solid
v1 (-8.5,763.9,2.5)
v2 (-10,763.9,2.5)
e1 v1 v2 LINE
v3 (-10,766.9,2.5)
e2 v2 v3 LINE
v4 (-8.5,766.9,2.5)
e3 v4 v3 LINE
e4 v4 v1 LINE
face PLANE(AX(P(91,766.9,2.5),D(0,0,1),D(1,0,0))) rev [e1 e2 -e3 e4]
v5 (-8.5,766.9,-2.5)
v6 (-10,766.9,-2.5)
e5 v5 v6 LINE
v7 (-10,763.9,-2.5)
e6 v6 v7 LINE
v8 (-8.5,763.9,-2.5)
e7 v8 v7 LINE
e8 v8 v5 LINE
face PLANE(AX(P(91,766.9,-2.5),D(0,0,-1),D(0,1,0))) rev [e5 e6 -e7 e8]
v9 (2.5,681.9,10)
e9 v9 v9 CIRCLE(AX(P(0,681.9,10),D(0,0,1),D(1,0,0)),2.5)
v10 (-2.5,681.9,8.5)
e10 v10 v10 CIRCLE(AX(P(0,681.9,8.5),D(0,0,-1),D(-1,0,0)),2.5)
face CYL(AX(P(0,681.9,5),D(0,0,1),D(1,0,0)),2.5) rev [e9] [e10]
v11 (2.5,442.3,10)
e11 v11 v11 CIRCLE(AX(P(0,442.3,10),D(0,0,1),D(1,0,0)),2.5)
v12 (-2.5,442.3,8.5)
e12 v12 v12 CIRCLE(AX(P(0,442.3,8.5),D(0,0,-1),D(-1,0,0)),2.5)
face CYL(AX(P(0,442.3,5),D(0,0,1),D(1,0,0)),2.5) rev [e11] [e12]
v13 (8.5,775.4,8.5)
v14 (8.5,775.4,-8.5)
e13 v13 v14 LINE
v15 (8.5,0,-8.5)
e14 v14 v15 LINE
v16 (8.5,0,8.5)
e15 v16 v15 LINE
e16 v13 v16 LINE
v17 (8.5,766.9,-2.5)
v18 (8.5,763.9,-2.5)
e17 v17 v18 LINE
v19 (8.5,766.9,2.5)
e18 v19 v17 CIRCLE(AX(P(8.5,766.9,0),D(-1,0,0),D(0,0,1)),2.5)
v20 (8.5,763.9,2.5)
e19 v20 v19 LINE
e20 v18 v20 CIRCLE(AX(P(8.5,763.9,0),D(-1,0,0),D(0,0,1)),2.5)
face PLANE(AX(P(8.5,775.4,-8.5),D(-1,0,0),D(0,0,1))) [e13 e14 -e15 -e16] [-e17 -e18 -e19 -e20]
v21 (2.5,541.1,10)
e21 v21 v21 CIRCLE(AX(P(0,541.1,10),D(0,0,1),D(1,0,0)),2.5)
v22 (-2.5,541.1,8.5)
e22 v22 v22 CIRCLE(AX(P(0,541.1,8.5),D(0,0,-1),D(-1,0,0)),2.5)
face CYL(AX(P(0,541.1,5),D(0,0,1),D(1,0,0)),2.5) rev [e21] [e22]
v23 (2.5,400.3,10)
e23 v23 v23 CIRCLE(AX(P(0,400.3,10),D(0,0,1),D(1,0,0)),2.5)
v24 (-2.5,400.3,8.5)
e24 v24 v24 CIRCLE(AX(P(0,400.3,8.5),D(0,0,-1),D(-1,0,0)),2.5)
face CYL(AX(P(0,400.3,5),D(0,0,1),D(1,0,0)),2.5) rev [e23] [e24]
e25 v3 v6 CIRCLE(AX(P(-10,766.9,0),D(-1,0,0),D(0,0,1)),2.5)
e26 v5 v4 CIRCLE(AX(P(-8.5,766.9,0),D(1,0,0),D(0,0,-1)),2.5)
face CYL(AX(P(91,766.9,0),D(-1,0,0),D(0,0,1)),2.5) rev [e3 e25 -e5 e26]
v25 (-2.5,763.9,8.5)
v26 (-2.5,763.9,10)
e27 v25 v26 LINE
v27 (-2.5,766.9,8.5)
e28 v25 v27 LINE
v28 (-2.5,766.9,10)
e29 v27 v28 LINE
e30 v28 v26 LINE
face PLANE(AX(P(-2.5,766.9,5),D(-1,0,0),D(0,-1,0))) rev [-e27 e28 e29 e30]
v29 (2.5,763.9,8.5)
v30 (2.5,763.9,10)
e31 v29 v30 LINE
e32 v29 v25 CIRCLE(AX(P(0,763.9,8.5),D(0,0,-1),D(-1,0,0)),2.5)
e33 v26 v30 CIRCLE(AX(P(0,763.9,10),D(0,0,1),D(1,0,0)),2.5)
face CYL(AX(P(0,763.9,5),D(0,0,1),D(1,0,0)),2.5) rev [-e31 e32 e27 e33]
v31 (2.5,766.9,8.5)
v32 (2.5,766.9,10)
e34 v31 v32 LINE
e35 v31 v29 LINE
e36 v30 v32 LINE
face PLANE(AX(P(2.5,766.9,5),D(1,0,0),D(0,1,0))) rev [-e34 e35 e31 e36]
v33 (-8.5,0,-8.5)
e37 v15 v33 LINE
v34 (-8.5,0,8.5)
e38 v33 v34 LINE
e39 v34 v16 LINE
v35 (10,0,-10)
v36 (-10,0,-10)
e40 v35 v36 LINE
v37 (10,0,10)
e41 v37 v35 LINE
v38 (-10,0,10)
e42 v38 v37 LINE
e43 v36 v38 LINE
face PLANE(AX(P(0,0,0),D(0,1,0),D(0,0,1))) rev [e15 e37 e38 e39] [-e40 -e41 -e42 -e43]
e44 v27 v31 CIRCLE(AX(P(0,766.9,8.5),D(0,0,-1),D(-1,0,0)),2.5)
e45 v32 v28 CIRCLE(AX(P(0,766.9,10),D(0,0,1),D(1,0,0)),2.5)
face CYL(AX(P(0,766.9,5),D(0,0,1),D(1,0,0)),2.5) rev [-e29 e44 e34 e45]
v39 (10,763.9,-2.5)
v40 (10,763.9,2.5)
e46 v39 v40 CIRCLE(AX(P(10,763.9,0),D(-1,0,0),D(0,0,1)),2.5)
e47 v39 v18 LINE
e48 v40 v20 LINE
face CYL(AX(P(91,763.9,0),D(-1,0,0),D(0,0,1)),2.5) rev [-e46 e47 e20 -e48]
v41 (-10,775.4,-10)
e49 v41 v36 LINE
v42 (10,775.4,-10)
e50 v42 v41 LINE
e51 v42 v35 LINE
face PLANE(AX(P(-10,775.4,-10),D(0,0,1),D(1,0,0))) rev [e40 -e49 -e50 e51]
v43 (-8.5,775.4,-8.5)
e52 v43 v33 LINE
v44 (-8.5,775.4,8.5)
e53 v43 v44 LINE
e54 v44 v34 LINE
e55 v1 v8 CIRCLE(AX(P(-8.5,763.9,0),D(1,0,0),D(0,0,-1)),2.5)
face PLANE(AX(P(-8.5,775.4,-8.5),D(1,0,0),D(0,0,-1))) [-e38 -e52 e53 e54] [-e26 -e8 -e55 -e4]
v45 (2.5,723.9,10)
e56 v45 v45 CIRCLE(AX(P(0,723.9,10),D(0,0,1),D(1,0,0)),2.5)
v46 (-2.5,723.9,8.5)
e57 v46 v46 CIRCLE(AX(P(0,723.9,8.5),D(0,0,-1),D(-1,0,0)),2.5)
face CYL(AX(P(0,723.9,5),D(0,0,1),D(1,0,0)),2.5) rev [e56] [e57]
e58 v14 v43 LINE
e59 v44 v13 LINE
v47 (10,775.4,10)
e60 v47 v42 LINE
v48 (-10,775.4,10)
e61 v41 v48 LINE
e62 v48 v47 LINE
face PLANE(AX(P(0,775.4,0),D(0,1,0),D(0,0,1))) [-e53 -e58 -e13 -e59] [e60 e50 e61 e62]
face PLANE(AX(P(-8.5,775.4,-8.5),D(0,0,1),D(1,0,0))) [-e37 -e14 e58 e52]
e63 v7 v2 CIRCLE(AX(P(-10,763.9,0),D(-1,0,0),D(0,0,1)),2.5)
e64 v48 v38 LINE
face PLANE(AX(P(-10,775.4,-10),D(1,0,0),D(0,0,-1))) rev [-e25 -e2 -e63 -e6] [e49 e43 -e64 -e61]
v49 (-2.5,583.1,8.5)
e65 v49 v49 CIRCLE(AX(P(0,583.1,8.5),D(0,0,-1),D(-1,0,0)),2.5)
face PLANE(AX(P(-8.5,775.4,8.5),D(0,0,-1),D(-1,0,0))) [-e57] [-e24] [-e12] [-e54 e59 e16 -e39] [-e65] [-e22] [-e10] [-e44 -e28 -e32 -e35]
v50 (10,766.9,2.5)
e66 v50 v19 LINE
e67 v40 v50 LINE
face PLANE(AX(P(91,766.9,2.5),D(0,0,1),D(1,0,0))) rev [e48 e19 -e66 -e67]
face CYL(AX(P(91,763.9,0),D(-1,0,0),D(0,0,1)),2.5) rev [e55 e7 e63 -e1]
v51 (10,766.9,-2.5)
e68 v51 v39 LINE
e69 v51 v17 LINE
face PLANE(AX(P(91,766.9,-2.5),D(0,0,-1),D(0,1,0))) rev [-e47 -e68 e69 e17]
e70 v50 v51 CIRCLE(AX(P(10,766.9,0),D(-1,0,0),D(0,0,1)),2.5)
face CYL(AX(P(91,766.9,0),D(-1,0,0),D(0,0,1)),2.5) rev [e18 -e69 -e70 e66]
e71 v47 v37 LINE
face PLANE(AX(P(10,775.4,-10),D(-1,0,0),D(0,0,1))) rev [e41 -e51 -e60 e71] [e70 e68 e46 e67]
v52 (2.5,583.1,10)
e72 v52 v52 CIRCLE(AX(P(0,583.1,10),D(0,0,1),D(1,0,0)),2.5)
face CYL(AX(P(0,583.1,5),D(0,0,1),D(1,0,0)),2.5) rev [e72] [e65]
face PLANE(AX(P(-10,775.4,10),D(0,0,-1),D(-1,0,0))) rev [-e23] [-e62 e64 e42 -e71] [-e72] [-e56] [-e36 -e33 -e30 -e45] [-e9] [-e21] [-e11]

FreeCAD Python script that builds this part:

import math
import FreeCAD as App
import Part
import Sketcher
Q = App.Units.Quantity

doc = App.newDocument("Part")
body = doc.addObject("PartDesign::Body", "Body")

# Sketch on XZ plane
sketch1 = body.newObject("Sketcher::SketchObject", "Sketch")
sketch1.AttachmentSupport = (doc.getObject("XZ_Plane"), [""])
sketch1.MapMode = "FlatFace"
sketch1.addGeometry([
    Part.LineSegment(App.Vector(-10, -10, 0), App.Vector(-10, 10, 0)),  # 0
    Part.LineSegment(App.Vector(-10, 10, 0), App.Vector(10, 10, 0)),  # 1
    Part.LineSegment(App.Vector(10, 10, 0), App.Vector(10, -10, 0)),  # 2
    Part.LineSegment(App.Vector(10, -10, 0), App.Vector(-10, -10, 0)),  # 3
    Part.LineSegment(App.Vector(8, 8, 0), App.Vector(-8, 8, 0)),  # 4
    Part.LineSegment(App.Vector(-8, 8, 0), App.Vector(-8, -8, 0)),  # 5
    Part.LineSegment(App.Vector(-8, -8, 0), App.Vector(8, -8, 0)),  # 6
    Part.LineSegment(App.Vector(8, -8, 0), App.Vector(8, 8, 0)),  # 7
], False)
sketch1.addConstraint([
    Sketcher.Constraint("Coincident", 0, 2, 1, 1),
    Sketcher.Constraint("Coincident", 1, 2, 2, 1),
    Sketcher.Constraint("Coincident", 2, 2, 3, 1),
    Sketcher.Constraint("Coincident", 3, 2, 0, 1),
    Sketcher.Constraint("Coincident", 4, 2, 5, 1),
    Sketcher.Constraint("Coincident", 5, 2, 6, 1),
    Sketcher.Constraint("Coincident", 6, 2, 7, 1),
    Sketcher.Constraint("Coincident", 7, 2, 4, 1),
    Sketcher.Constraint("Vertical", 0),
    Sketcher.Constraint("Horizontal", 1),
    Sketcher.Constraint("Vertical", 2),
    Sketcher.Constraint("Horizontal", 3),
    Sketcher.Constraint("Horizontal", 4),
    Sketcher.Constraint("Vertical", 5),
    Sketcher.Constraint("Horizontal", 6),
    Sketcher.Constraint("Vertical", 7),
    Sketcher.Constraint("Symmetric", 0, 2, 2, 2, -1, 1),
    Sketcher.Constraint("Symmetric", 4, 2, 6, 2, -1, 1),
    Sketcher.Constraint("Equal", 3, 0),
    Sketcher.Constraint("Equal", 6, 5),
    Sketcher.Constraint("DistanceX", 1, 1, 1, 2, Q("20 mm")),
    Sketcher.Constraint("DistanceX", 4, 2, 4, 1, Q("17 mm")),
])
pad1 = body.newObject("PartDesign::Pad", "Pad")
pad1.Profile = sketch1
pad1.Length = 775.4
pad1.Reversed = True

# Sketch on XY plane
sketch2 = body.newObject("Sketcher::SketchObject", "Sketch001")
sketch2.AttachmentSupport = (doc.getObject("XY_Plane"), [""])
sketch2.MapMode = "FlatFace"
sketch2.AttachmentOffset = App.Placement(App.Vector(0, 0, 10), App.Rotation())
sketch2.addGeometry([
    Part.LineSegment(App.Vector(-2.5, 766.9, 0), App.Vector(-2.5, 763.9, 0)),
    Part.ArcOfCircle(Part.Circle(App.Vector(0, 763.9, 0), App.Vector(0, 0, 1), 2.5), math.radians(180), math.radians(360)),
    Part.LineSegment(App.Vector(2.5, 763.9, 0), App.Vector(2.5, 766.9, 0)),
    Part.ArcOfCircle(Part.Circle(App.Vector(0, 766.9, 0), App.Vector(0, 0, 1), 2.5), math.radians(0), math.radians(180)),
], False)
sketch2.addConstraint([
    Sketcher.Constraint("Tangent", 0, 2, 1, 1),
    Sketcher.Constraint("Tangent", 1, 2, 2, 1),
    Sketcher.Constraint("Tangent", 2, 2, 3, 1),
    Sketcher.Constraint("Tangent", 3, 2, 0, 1),
    Sketcher.Constraint("Vertical", 0),
    Sketcher.Constraint("Vertical", 2),
    Sketcher.Constraint("PointOnObject", 1, 3, -2),
    Sketcher.Constraint("Radius", 1, Q("2.5 mm")),
    Sketcher.Constraint("DistanceY", 0, 2, 0, 1, Q("3 mm")),
    Sketcher.Constraint("DistanceY", -1, 1, 1, 3, Q("763.9 mm")),
])
pocket1 = body.newObject("PartDesign::Pocket", "Pocket")
pocket1.Profile = sketch2
pocket1.Length = 5

# Sketch on XY plane
sketch3 = body.newObject("Sketcher::SketchObject", "Sketch002")
sketch3.AttachmentSupport = (doc.getObject("XY_Plane"), [""])
sketch3.MapMode = "FlatFace"
sketch3.AttachmentOffset = App.Placement(App.Vector(0, 0, 10), App.Rotation())
sketch3.addGeometry([
    Part.Circle(App.Vector(0, 723.9, 0), App.Vector(0, 0, 1), 2.5),  # 0
    Part.Circle(App.Vector(0, 681.9, 0), App.Vector(0, 0, 1), 2.5),  # 1
    Part.Circle(App.Vector(0, 583.1, 0), App.Vector(0, 0, 1), 2.5),  # 2
    Part.Circle(App.Vector(0, 541.1, 0), App.Vector(0, 0, 1), 2.5),  # 3
    Part.Circle(App.Vector(0, 442.3, 0), App.Vector(0, 0, 1), 2.5),  # 4
    Part.Circle(App.Vector(0, 400.3, 0), App.Vector(0, 0, 1), 2.5),  # 5
], False)
sketch3.addConstraint([
    Sketcher.Constraint("Equal", 0, 1),
    Sketcher.Constraint("Equal", 1, 2),
    Sketcher.Constraint("Equal", 2, 3),
    Sketcher.Constraint("Equal", 3, 4),
    Sketcher.Constraint("Equal", 4, 5),
    Sketcher.Constraint("PointOnObject", 0, 3, -2),
    Sketcher.Constraint("PointOnObject", 1, 3, -2),
    Sketcher.Constraint("PointOnObject", 2, 3, -2),
    Sketcher.Constraint("PointOnObject", 3, 3, -2),
    Sketcher.Constraint("PointOnObject", 4, 3, -2),
    Sketcher.Constraint("PointOnObject", 5, 3, -2),
    Sketcher.Constraint("Diameter", 0, Q("5 mm")),
    Sketcher.Constraint("DistanceY", 1, 3, 0, 3, Q("42 mm")),
    Sketcher.Constraint("DistanceY", 3, 3, 2, 3, Q("42 mm")),
    Sketcher.Constraint("DistanceY", 5, 3, 4, 3, Q("42 mm")),
    Sketcher.Constraint("DistanceY", -1, 1, 0, 3, Q("723.9 mm")),
    Sketcher.Constraint("DistanceY", -1, 1, 2, 3, Q("583.1 mm")),
    Sketcher.Constraint("DistanceY", -1, 1, 4, 3, Q("442.3 mm")),
])
pocket2 = body.newObject("PartDesign::Pocket", "Pocket001")
pocket2.Profile = sketch3
pocket2.Length = 5

# Sketch on YZ plane
sketch4 = body.newObject("Sketcher::SketchObject", "Sketch003")
sketch4.AttachmentSupport = (doc.getObject("YZ_Plane"), [""])
sketch4.MapMode = "FlatFace"
sketch4.AttachmentOffset = App.Placement(App.Vector(0, 0, -10), App.Rotation())
sketch4.addGeometry([
    Part.LineSegment(App.Vector(766.9, -2.5, 0), App.Vector(763.9, -2.5, 0)),
    Part.ArcOfCircle(Part.Circle(App.Vector(763.9, 0, 0), App.Vector(0, 0, 1), 2.5), math.radians(90), math.radians(270)),
    Part.LineSegment(App.Vector(763.9, 2.5, 0), App.Vector(766.9, 2.5, 0)),
    Part.ArcOfCircle(Part.Circle(App.Vector(766.9, 0, 0), App.Vector(0, 0, 1), 2.5), math.radians(-90), math.radians(90)),
], False)
sketch4.addConstraint([
    Sketcher.Constraint("Tangent", 0, 2, 1, 2),
    Sketcher.Constraint("Tangent", 1, 1, 2, 1),
    Sketcher.Constraint("Tangent", 2, 2, 3, 2),
    Sketcher.Constraint("Tangent", 3, 1, 0, 1),
    Sketcher.Constraint("Horizontal", 0),
    Sketcher.Constraint("Horizontal", 2),
    Sketcher.Constraint("PointOnObject", 1, 3, -1),
    Sketcher.Constraint("Radius", 1, Q("2.5 mm")),
    Sketcher.Constraint("DistanceX", 0, 2, 0, 1, Q("3 mm")),
    Sketcher.Constraint("DistanceX", -1, 1, 1, 3, Q("763.9 mm")),
])
pocket3 = body.newObject("PartDesign::Pocket", "Pocket002")
pocket3.Profile = sketch4
pocket3.Length = 101
pocket3.Reversed = True

doc.recompute()
